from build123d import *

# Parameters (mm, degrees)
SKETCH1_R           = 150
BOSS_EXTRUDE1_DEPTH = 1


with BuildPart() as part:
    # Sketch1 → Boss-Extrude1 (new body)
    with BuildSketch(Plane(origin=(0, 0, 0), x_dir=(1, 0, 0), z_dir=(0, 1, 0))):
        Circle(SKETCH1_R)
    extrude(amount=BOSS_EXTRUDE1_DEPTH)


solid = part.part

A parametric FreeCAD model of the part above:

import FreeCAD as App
import Part
import Sketcher

doc = App.newDocument("Part")
body = doc.addObject("PartDesign::Body", "Body")

# Sketch on XZ plane
sketch1 = body.newObject("Sketcher::SketchObject", "Sketch")
sketch1.AttachmentSupport = (doc.getObject("XZ_Plane"), [""])
sketch1.MapMode = "FlatFace"
sketch1.addGeometry(Part.Circle(App.Vector(0, 0, 0), App.Vector(0, 0, 1), 150), False)
sketch1.addConstraint([
    Sketcher.Constraint("Coincident", 0, 3, -1, 1),
    Sketcher.Constraint("Diameter", 0, 300.0),
])
pad1 = body.newObject("PartDesign::Pad", "Pad")
pad1.Profile = sketch1
pad1.Length = 1
pad1.Reversed = True

doc.recompute()
